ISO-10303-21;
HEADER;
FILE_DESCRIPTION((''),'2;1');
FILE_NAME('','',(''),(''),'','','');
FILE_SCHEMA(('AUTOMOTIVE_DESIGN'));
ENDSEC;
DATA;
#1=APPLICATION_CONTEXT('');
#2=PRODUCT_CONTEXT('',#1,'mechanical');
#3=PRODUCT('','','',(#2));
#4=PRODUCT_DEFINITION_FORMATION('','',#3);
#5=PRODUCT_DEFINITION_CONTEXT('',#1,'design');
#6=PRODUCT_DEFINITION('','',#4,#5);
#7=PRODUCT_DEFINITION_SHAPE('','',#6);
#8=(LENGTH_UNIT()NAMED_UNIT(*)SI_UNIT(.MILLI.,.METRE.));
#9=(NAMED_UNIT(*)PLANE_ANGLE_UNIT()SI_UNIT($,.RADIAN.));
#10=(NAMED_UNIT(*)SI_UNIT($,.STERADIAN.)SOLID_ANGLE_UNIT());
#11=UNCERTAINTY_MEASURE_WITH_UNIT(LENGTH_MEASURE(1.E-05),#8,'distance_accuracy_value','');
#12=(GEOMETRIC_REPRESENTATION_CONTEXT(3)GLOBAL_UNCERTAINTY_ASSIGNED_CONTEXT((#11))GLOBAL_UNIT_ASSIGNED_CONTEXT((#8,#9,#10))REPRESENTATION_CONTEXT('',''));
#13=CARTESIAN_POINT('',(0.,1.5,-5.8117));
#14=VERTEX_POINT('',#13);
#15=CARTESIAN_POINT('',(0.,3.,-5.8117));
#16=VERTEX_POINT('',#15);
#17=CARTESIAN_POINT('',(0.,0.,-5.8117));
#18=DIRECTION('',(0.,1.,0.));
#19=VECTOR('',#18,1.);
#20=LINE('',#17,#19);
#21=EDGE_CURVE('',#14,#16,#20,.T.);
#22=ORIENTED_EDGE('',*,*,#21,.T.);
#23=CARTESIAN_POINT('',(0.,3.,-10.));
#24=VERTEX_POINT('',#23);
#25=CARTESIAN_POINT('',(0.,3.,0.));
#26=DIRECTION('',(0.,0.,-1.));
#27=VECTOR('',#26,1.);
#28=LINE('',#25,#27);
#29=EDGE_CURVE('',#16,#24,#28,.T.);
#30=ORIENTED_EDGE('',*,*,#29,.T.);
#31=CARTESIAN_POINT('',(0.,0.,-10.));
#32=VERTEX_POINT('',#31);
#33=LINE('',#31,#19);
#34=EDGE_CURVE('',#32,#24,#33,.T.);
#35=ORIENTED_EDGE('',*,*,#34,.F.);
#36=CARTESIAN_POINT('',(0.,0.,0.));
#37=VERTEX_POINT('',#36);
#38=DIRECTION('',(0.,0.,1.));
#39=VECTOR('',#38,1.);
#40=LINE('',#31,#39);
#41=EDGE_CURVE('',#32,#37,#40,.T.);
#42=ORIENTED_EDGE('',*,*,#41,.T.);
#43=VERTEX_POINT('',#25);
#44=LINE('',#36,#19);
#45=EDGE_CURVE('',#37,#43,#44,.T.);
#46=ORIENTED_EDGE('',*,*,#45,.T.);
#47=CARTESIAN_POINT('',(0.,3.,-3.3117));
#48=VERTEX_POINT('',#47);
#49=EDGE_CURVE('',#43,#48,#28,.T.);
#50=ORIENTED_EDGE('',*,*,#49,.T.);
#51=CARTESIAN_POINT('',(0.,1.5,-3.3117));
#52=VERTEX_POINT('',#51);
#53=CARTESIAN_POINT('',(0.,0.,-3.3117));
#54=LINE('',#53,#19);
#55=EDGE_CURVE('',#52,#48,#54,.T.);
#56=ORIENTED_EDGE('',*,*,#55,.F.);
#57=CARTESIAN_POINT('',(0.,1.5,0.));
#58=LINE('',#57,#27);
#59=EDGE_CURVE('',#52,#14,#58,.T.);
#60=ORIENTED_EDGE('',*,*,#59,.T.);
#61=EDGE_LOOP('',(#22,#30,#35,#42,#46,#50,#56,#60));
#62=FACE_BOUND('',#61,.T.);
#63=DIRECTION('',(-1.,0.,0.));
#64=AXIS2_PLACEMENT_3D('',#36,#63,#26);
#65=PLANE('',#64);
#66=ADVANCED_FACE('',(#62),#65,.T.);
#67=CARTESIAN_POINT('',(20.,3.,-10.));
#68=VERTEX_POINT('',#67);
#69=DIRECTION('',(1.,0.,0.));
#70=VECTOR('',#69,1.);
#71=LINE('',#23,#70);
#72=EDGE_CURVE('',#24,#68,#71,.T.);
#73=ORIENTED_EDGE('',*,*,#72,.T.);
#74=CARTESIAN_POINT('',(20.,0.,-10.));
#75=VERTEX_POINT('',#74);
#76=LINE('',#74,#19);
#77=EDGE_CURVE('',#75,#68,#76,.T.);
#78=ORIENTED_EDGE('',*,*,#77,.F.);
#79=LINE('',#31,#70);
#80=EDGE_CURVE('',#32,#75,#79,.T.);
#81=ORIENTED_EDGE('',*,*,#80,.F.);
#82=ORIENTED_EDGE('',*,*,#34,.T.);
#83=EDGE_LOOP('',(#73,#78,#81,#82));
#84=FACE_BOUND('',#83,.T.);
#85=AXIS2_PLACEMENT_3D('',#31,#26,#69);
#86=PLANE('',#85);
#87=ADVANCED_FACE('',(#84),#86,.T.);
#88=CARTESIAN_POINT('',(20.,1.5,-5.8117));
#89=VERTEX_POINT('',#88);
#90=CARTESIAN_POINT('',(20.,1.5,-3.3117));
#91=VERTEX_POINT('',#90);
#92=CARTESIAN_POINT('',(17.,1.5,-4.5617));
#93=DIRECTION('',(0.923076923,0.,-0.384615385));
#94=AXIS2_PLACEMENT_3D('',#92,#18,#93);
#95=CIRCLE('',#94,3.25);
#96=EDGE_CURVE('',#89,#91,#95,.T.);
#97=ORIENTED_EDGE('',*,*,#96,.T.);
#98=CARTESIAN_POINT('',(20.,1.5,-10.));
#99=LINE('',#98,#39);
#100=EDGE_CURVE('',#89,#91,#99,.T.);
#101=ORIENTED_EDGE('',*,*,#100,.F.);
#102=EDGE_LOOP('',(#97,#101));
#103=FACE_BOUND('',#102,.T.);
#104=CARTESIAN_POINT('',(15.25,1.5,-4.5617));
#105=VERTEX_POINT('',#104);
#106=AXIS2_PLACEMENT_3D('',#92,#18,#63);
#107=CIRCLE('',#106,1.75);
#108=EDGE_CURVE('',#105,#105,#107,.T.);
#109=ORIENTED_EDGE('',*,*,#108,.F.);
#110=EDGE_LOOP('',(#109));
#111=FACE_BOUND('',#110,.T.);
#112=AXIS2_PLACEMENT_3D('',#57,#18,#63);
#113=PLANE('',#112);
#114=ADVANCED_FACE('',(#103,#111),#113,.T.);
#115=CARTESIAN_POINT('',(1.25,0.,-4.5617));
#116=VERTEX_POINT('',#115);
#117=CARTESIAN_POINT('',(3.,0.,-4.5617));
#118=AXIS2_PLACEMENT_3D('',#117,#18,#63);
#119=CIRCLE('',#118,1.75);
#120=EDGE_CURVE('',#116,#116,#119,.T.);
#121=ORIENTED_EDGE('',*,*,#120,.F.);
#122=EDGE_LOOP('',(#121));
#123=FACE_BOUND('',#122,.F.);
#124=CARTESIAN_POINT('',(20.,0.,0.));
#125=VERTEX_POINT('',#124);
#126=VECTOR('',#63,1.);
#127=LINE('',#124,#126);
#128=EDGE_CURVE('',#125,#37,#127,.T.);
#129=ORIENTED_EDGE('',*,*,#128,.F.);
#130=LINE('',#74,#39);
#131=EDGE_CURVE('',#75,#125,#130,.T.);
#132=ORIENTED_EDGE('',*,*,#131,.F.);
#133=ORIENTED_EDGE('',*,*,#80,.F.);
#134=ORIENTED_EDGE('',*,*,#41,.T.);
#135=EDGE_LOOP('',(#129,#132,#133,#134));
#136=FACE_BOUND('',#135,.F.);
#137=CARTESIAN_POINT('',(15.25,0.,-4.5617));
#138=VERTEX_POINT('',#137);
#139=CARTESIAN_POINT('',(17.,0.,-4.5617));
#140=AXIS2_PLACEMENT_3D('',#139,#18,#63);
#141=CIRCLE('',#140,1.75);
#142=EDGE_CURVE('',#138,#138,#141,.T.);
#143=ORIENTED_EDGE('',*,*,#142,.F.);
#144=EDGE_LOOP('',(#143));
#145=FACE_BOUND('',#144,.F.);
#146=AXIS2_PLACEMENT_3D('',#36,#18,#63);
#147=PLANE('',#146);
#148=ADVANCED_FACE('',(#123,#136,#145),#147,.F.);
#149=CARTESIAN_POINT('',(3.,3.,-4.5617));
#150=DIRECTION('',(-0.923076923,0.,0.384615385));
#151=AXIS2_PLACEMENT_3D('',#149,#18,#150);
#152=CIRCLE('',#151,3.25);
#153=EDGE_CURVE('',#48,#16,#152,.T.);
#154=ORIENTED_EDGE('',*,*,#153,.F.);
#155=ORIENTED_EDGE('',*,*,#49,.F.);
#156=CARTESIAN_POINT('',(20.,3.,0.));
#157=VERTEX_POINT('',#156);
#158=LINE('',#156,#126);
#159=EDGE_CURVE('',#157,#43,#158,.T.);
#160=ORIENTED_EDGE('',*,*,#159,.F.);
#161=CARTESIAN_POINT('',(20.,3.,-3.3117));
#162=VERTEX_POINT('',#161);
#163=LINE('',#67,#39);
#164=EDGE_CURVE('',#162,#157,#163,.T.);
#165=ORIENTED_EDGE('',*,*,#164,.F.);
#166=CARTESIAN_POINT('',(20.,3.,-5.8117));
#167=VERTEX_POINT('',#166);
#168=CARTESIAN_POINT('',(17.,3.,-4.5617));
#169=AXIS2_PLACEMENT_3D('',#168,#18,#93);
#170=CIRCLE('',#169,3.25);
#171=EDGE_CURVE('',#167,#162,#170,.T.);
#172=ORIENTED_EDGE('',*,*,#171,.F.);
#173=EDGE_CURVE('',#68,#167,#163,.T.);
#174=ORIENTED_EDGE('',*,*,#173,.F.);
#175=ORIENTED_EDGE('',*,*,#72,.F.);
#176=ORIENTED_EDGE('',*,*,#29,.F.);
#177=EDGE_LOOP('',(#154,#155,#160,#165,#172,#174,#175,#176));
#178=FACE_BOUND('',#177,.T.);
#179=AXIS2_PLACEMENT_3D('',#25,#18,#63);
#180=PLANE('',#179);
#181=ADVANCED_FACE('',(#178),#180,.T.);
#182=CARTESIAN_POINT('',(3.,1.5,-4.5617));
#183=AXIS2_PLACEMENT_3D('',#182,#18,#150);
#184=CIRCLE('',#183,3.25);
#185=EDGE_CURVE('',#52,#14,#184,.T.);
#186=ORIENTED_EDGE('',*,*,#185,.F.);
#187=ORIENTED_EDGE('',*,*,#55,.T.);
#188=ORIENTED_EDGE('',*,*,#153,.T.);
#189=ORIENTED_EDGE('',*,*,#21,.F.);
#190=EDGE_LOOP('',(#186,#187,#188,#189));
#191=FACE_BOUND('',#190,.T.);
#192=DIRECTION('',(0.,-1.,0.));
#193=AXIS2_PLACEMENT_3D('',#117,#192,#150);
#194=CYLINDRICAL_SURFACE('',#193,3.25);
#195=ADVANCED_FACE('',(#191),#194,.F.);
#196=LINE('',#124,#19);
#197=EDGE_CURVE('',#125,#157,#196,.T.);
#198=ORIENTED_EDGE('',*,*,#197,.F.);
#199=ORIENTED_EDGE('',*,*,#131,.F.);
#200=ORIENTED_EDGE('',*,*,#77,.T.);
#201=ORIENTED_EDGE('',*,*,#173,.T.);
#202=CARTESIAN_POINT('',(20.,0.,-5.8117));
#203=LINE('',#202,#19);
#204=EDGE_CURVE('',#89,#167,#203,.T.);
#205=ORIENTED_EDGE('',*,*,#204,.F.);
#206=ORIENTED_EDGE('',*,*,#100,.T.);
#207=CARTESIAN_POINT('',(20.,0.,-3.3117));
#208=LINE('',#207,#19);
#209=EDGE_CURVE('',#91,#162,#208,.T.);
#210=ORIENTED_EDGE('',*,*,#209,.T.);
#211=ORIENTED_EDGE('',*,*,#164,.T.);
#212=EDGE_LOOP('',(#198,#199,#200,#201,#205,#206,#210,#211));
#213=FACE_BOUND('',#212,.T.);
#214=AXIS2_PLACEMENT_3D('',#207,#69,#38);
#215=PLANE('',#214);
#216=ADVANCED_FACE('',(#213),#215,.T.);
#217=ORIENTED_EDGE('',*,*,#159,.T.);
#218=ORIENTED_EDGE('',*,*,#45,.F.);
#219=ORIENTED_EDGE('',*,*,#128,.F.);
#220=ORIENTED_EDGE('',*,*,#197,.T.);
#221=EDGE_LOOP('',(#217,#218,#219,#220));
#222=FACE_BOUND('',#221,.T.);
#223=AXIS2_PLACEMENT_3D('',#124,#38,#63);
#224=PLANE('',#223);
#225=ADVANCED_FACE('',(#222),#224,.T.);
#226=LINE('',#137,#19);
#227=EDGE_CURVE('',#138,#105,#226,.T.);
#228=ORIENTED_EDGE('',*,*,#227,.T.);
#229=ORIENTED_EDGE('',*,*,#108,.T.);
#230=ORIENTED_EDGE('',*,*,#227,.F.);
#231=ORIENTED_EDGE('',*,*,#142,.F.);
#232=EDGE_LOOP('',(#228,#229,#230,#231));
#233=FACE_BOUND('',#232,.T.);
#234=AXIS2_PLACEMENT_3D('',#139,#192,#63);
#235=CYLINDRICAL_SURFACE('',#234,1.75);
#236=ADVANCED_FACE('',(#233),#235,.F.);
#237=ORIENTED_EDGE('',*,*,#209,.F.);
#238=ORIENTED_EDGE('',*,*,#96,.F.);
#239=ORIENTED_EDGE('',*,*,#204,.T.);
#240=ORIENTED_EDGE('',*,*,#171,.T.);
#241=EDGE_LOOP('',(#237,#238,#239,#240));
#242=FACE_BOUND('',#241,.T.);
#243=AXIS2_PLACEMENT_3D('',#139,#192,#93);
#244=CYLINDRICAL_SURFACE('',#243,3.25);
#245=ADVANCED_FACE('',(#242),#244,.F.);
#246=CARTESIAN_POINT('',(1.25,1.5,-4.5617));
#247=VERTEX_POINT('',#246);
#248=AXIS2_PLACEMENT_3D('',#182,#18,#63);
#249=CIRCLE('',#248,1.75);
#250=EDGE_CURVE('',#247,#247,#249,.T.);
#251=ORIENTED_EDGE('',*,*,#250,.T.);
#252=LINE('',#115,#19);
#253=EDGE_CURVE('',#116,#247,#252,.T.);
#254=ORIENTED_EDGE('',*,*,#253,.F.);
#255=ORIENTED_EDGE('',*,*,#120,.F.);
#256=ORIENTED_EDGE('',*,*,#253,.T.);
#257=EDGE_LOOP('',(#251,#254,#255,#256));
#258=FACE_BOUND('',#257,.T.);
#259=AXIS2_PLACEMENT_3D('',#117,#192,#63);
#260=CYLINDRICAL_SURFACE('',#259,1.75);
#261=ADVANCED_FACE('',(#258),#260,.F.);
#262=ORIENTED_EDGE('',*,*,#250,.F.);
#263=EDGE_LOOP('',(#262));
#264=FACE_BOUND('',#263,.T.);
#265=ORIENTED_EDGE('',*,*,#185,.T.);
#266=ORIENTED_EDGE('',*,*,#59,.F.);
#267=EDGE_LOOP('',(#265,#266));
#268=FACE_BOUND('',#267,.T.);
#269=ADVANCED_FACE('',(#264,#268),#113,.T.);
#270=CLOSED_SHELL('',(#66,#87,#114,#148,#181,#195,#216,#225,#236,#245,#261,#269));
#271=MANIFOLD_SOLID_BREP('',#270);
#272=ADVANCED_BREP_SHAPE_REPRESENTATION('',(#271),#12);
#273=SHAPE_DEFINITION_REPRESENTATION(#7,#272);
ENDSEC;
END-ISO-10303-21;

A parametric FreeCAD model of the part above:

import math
import FreeCAD as App
import Part
import Sketcher

doc = App.newDocument("Part")
body = doc.addObject("PartDesign::Body", "Body")
body.AllowCompound = True

# Sketch on XZ plane
sketch1 = doc.addObject("Sketcher::SketchObject", "Sketch")
body.addObject(sketch1)
sketch1.AttachmentSupport = (doc.XZ_Plane, [""])
sketch1.MapMode = "FlatFace"
sketch1.addGeometry(Part.LineSegment(App.Vector(0, -5.8117, 0), App.Vector(0, -3.3117, 0)), False)
sketch1.addGeometry(Part.ArcOfCircle(Part.Circle(App.Vector(3, -4.5617, 0), App.Vector(0, 0, 1), 3.25), math.radians(-157.380135), math.radians(157.380135)), False)
sketch1.addGeometry(Part.Circle(App.Vector(3, -4.5617, 0), App.Vector(0, 0, 1), 1.75), False)
sketch1.addGeometry(Part.ArcOfCircle(Part.Circle(App.Vector(17, -4.5617, 0), App.Vector(0, 0, 1), 3.25), math.radians(22.619865), math.radians(337.380135)), False)
sketch1.addGeometry(Part.LineSegment(App.Vector(20, -3.3117, 0), App.Vector(20, -5.8117, 0)), False)
sketch1.addGeometry(Part.Circle(App.Vector(17, -4.5617, 0), App.Vector(0, 0, 1), 1.75), False)
sketch1.addConstraint(Sketcher.Constraint("Coincident", 0, 1, 1, 1))
sketch1.addConstraint(Sketcher.Constraint("Coincident", 1, 2, 0, 2))
sketch1.addConstraint(Sketcher.Constraint("Coincident", 3, 1, 4, 1))
sketch1.addConstraint(Sketcher.Constraint("Coincident", 4, 2, 3, 2))
sketch1.addConstraint(Sketcher.Constraint("Vertical", 0))
sketch1.addConstraint(Sketcher.Constraint("Vertical", 4))
sketch1.addConstraint(Sketcher.Constraint("Coincident", 2, 3, 1, 3))
sketch1.addConstraint(Sketcher.Constraint("Coincident", 5, 3, 3, 3))
sketch1.addConstraint(Sketcher.Constraint("Equal", 1, 3))
sketch1.addConstraint(Sketcher.Constraint("Equal", 2, 5))
sketch1.addConstraint(Sketcher.Constraint("PointOnObject", 0, 1, -2))
sketch1.addConstraint(Sketcher.Constraint("Horizontal", 2, 3, 3, 3))
sketch1.addConstraint(Sketcher.Constraint("Horizontal", 1, 2, 3, 1))
sketch1.addConstraint(Sketcher.Constraint("Diameter", 2, 3.5))
sketch1.addConstraint(Sketcher.Constraint("Radius", 1, 3.25))
sketch1.addConstraint(Sketcher.Constraint("DistanceX", -1, 1, 3, 1, 20.0))
sketch1.addConstraint(Sketcher.Constraint("DistanceY", 0, 1, 0, 2, 2.5))
sketch1.addConstraint(Sketcher.Constraint("DistanceY", 1, 3, -1, 1, 4.5617))
pad1 = doc.addObject("PartDesign::Pad", "Pad")
body.addObject(pad1)
pad1.Profile = sketch1
pad1.Length = 1.5
pad1.Reversed = True

# Sketch on XZ plane
sketch2 = doc.addObject("Sketcher::SketchObject", "Sketch001")
body.addObject(sketch2)
sketch2.AttachmentSupport = (doc.XZ_Plane, [""])
sketch2.MapMode = "FlatFace"
sketch2.addGeometry(Part.LineSegment(App.Vector(0, -3.3117, 0), App.Vector(0, 0, 0)), False)
sketch2.addGeometry(Part.LineSegment(App.Vector(0, 0, 0), App.Vector(20, 0, 0)), False)
sketch2.addGeometry(Part.LineSegment(App.Vector(20, 0, 0), App.Vector(20, -3.3117, 0)), False)
sketch2.addGeometry(Part.ArcOfCircle(Part.Circle(App.Vector(17, -4.5617, 0), App.Vector(0, 0, 1), 3.25), math.radians(22.619865), math.radians(337.380135)), False)
sketch2.addGeometry(Part.LineSegment(App.Vector(20, -5.8117, 0), App.Vector(20, -10, 0)), False)
sketch2.addGeometry(Part.LineSegment(App.Vector(20, -10, 0), App.Vector(0, -10, 0)), False)
sketch2.addGeometry(Part.LineSegment(App.Vector(0, -10, 0), App.Vector(0, -5.8117, 0)), False)
sketch2.addGeometry(Part.ArcOfCircle(Part.Circle(App.Vector(3, -4.5617, 0), App.Vector(0, 0, 1), 3.25), math.radians(-157.380135), math.radians(157.380135)), False)
sketch2.addConstraint(Sketcher.Constraint("Coincident", 0, 2, 1, 1))
sketch2.addConstraint(Sketcher.Constraint("Coincident", 1, 2, 2, 1))
sketch2.addConstraint(Sketcher.Constraint("Coincident", 2, 2, 3, 1))
sketch2.addConstraint(Sketcher.Constraint("Coincident", 3, 2, 4, 1))
sketch2.addConstraint(Sketcher.Constraint("Coincident", 4, 2, 5, 1))
sketch2.addConstraint(Sketcher.Constraint("Coincident", 5, 2, 6, 1))
sketch2.addConstraint(Sketcher.Constraint("Coincident", 6, 2, 7, 1))
sketch2.addConstraint(Sketcher.Constraint("Coincident", 7, 2, 0, 1))
sketch2.addConstraint(Sketcher.Constraint("Vertical", 0))
sketch2.addConstraint(Sketcher.Constraint("Horizontal", 1))
sketch2.addConstraint(Sketcher.Constraint("Vertical", 2))
sketch2.addConstraint(Sketcher.Constraint("Vertical", 4))
sketch2.addConstraint(Sketcher.Constraint("Horizontal", 5))
sketch2.addConstraint(Sketcher.Constraint("Vertical", 6))
sketch2.addConstraint(Sketcher.Constraint("Coincident", 0, 2, -1, 1))
sketch2.addConstraint(Sketcher.Constraint("Equal", 3, 7))
sketch2.addConstraint(Sketcher.Constraint("PointOnObject", 5, 2, -2))
sketch2.addConstraint(Sketcher.Constraint("Horizontal", 3, 3, 7, 3))
sketch2.addConstraint(Sketcher.Constraint("Horizontal", 3, 2, 6, 2))
sketch2.addConstraint(Sketcher.Constraint("Horizontal", 2, 2, 7, 2))
sketch2.addConstraint(Sketcher.Constraint("DistanceX", 1, 1, 1, 2, 20.0))
sketch2.addConstraint(Sketcher.Constraint("Radius", 3, 3.25))
sketch2.addConstraint(Sketcher.Constraint("DistanceY", 4, 2, -1, 1, 10.0))
sketch2.addConstraint(Sketcher.Constraint("DistanceY", 0, 1, 0, 2, 3.3117))
sketch2.addConstraint(Sketcher.Constraint("DistanceX", -1, 1, 3, 3, 17.0))
pad2 = doc.addObject("PartDesign::Pad", "Pad001")
body.addObject(pad2)
pad2.Profile = sketch2
pad2.Length = 3
pad2.Reversed = True

doc.recompute()
